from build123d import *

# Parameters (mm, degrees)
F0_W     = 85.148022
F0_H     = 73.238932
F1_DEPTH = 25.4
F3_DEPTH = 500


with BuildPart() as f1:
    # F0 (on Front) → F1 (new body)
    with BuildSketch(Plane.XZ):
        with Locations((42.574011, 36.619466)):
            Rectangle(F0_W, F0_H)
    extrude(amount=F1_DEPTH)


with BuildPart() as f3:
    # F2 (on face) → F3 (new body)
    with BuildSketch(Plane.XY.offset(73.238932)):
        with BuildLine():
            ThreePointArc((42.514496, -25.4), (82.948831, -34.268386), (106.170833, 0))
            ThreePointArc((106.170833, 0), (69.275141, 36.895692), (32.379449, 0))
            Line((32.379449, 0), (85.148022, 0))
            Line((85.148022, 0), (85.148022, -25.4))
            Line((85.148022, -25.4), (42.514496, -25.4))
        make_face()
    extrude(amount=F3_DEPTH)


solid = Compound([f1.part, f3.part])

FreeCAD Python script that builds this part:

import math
import FreeCAD as App
import Part
import Sketcher
from FreeCAD import Vector
Q = App.Units.Quantity

doc = App.newDocument("Part")
body = doc.addObject("PartDesign::Body", "Body")

sketch1 = body.newObject("Sketcher::SketchObject", "Sketch")
sketch1.AttachmentSupport = (doc.getObject("XZ_Plane"), [""])
sketch1.MapMode = "FlatFace"
sketch1.addGeometry([
    Part.LineSegment(Vector(0, 73, 0), Vector(0, 0, 0)),
    Part.LineSegment(Vector(0, 0, 0), Vector(85, 0, 0)),
    Part.LineSegment(Vector(85, 0, 0), Vector(85, 73, 0)),
    Part.LineSegment(Vector(85, 73, 0), Vector(0, 73, 0)),
], False)
sketch1.addConstraint([
    Sketcher.Constraint("Coincident", 0, 2, 1, 1),
    Sketcher.Constraint("Coincident", 1, 2, 2, 1),
    Sketcher.Constraint("Coincident", 2, 2, 3, 1),
    Sketcher.Constraint("Coincident", 3, 2, 0, 1),
    Sketcher.Constraint("Vertical", 0),
    Sketcher.Constraint("Horizontal", 1),
    Sketcher.Constraint("Vertical", 2),
    Sketcher.Constraint("Horizontal", 3),
    Sketcher.Constraint("Coincident", 0, 2, -1, 1),
    Sketcher.Constraint("DistanceX", 1, 1, 1, 2, Q("85.148022 mm")),
    Sketcher.Constraint("DistanceY", 0, 2, 0, 1, Q("73.238932 mm")),
])
pad1 = body.newObject("PartDesign::Pad", "Pad")
pad1.Profile = sketch1
pad1.Length = 25.4
body2 = doc.addObject("PartDesign::Body", "Body001")

sketch2 = body2.newObject("Sketcher::SketchObject", "Sketch001")
sketch2.AttachmentSupport = (doc.getObject("XY_Plane001"), [""])
sketch2.MapMode = "FlatFace"
sketch2.AttachmentOffset = App.Placement(Vector(0, 0, 73.238932), App.Rotation())
sketch2.addGeometry([
    Part.ArcOfCircle(Part.Circle(Vector(69, 0, 0), Vector(0, 0, 1), 37), math.radians(-136), math.radians(0)),
    Part.ArcOfCircle(Part.Circle(Vector(69, 0, 0), Vector(0, 0, 1), 37), math.radians(0), math.radians(180)),
    Part.LineSegment(Vector(32, 0, 0), Vector(85, 0, 0)),
    Part.LineSegment(Vector(85, 0, 0), Vector(85, -25, 0)),
    Part.LineSegment(Vector(85, -25, 0), Vector(43, -25, 0)),
], False)
sketch2.addConstraint([
    Sketcher.Constraint("Tangent", 0, 2, 1, 1),
    Sketcher.Constraint("Coincident", 1, 2, 2, 1),
    Sketcher.Constraint("Coincident", 2, 2, 3, 1),
    Sketcher.Constraint("Coincident", 3, 2, 4, 1),
    Sketcher.Constraint("Coincident", 4, 2, 0, 1),
    Sketcher.Constraint("Horizontal", 2),
    Sketcher.Constraint("Vertical", 3),
    Sketcher.Constraint("Horizontal", 4),
    Sketcher.Constraint("Equal", 0, 1),
    Sketcher.Constraint("PointOnObject", 0, 3, -1),
    Sketcher.Constraint("PointOnObject", 0, 2, -1),
    Sketcher.Constraint("PointOnObject", 1, 2, -1),
    Sketcher.Constraint("DistanceY", 3, 2, 3, 1, Q("25.4 mm")),
    Sketcher.Constraint("Radius", 1, Q("36.895692 mm")),
    Sketcher.Constraint("DistanceX", 2, 1, 2, 2, Q("52.768573 mm")),
    Sketcher.Constraint("DistanceX", -1, 1, 0, 3, Q("69.275141 mm")),
])
pad2 = body2.newObject("PartDesign::Pad", "Pad001")
pad2.Profile = sketch2
pad2.Length = 500

doc.recompute()
